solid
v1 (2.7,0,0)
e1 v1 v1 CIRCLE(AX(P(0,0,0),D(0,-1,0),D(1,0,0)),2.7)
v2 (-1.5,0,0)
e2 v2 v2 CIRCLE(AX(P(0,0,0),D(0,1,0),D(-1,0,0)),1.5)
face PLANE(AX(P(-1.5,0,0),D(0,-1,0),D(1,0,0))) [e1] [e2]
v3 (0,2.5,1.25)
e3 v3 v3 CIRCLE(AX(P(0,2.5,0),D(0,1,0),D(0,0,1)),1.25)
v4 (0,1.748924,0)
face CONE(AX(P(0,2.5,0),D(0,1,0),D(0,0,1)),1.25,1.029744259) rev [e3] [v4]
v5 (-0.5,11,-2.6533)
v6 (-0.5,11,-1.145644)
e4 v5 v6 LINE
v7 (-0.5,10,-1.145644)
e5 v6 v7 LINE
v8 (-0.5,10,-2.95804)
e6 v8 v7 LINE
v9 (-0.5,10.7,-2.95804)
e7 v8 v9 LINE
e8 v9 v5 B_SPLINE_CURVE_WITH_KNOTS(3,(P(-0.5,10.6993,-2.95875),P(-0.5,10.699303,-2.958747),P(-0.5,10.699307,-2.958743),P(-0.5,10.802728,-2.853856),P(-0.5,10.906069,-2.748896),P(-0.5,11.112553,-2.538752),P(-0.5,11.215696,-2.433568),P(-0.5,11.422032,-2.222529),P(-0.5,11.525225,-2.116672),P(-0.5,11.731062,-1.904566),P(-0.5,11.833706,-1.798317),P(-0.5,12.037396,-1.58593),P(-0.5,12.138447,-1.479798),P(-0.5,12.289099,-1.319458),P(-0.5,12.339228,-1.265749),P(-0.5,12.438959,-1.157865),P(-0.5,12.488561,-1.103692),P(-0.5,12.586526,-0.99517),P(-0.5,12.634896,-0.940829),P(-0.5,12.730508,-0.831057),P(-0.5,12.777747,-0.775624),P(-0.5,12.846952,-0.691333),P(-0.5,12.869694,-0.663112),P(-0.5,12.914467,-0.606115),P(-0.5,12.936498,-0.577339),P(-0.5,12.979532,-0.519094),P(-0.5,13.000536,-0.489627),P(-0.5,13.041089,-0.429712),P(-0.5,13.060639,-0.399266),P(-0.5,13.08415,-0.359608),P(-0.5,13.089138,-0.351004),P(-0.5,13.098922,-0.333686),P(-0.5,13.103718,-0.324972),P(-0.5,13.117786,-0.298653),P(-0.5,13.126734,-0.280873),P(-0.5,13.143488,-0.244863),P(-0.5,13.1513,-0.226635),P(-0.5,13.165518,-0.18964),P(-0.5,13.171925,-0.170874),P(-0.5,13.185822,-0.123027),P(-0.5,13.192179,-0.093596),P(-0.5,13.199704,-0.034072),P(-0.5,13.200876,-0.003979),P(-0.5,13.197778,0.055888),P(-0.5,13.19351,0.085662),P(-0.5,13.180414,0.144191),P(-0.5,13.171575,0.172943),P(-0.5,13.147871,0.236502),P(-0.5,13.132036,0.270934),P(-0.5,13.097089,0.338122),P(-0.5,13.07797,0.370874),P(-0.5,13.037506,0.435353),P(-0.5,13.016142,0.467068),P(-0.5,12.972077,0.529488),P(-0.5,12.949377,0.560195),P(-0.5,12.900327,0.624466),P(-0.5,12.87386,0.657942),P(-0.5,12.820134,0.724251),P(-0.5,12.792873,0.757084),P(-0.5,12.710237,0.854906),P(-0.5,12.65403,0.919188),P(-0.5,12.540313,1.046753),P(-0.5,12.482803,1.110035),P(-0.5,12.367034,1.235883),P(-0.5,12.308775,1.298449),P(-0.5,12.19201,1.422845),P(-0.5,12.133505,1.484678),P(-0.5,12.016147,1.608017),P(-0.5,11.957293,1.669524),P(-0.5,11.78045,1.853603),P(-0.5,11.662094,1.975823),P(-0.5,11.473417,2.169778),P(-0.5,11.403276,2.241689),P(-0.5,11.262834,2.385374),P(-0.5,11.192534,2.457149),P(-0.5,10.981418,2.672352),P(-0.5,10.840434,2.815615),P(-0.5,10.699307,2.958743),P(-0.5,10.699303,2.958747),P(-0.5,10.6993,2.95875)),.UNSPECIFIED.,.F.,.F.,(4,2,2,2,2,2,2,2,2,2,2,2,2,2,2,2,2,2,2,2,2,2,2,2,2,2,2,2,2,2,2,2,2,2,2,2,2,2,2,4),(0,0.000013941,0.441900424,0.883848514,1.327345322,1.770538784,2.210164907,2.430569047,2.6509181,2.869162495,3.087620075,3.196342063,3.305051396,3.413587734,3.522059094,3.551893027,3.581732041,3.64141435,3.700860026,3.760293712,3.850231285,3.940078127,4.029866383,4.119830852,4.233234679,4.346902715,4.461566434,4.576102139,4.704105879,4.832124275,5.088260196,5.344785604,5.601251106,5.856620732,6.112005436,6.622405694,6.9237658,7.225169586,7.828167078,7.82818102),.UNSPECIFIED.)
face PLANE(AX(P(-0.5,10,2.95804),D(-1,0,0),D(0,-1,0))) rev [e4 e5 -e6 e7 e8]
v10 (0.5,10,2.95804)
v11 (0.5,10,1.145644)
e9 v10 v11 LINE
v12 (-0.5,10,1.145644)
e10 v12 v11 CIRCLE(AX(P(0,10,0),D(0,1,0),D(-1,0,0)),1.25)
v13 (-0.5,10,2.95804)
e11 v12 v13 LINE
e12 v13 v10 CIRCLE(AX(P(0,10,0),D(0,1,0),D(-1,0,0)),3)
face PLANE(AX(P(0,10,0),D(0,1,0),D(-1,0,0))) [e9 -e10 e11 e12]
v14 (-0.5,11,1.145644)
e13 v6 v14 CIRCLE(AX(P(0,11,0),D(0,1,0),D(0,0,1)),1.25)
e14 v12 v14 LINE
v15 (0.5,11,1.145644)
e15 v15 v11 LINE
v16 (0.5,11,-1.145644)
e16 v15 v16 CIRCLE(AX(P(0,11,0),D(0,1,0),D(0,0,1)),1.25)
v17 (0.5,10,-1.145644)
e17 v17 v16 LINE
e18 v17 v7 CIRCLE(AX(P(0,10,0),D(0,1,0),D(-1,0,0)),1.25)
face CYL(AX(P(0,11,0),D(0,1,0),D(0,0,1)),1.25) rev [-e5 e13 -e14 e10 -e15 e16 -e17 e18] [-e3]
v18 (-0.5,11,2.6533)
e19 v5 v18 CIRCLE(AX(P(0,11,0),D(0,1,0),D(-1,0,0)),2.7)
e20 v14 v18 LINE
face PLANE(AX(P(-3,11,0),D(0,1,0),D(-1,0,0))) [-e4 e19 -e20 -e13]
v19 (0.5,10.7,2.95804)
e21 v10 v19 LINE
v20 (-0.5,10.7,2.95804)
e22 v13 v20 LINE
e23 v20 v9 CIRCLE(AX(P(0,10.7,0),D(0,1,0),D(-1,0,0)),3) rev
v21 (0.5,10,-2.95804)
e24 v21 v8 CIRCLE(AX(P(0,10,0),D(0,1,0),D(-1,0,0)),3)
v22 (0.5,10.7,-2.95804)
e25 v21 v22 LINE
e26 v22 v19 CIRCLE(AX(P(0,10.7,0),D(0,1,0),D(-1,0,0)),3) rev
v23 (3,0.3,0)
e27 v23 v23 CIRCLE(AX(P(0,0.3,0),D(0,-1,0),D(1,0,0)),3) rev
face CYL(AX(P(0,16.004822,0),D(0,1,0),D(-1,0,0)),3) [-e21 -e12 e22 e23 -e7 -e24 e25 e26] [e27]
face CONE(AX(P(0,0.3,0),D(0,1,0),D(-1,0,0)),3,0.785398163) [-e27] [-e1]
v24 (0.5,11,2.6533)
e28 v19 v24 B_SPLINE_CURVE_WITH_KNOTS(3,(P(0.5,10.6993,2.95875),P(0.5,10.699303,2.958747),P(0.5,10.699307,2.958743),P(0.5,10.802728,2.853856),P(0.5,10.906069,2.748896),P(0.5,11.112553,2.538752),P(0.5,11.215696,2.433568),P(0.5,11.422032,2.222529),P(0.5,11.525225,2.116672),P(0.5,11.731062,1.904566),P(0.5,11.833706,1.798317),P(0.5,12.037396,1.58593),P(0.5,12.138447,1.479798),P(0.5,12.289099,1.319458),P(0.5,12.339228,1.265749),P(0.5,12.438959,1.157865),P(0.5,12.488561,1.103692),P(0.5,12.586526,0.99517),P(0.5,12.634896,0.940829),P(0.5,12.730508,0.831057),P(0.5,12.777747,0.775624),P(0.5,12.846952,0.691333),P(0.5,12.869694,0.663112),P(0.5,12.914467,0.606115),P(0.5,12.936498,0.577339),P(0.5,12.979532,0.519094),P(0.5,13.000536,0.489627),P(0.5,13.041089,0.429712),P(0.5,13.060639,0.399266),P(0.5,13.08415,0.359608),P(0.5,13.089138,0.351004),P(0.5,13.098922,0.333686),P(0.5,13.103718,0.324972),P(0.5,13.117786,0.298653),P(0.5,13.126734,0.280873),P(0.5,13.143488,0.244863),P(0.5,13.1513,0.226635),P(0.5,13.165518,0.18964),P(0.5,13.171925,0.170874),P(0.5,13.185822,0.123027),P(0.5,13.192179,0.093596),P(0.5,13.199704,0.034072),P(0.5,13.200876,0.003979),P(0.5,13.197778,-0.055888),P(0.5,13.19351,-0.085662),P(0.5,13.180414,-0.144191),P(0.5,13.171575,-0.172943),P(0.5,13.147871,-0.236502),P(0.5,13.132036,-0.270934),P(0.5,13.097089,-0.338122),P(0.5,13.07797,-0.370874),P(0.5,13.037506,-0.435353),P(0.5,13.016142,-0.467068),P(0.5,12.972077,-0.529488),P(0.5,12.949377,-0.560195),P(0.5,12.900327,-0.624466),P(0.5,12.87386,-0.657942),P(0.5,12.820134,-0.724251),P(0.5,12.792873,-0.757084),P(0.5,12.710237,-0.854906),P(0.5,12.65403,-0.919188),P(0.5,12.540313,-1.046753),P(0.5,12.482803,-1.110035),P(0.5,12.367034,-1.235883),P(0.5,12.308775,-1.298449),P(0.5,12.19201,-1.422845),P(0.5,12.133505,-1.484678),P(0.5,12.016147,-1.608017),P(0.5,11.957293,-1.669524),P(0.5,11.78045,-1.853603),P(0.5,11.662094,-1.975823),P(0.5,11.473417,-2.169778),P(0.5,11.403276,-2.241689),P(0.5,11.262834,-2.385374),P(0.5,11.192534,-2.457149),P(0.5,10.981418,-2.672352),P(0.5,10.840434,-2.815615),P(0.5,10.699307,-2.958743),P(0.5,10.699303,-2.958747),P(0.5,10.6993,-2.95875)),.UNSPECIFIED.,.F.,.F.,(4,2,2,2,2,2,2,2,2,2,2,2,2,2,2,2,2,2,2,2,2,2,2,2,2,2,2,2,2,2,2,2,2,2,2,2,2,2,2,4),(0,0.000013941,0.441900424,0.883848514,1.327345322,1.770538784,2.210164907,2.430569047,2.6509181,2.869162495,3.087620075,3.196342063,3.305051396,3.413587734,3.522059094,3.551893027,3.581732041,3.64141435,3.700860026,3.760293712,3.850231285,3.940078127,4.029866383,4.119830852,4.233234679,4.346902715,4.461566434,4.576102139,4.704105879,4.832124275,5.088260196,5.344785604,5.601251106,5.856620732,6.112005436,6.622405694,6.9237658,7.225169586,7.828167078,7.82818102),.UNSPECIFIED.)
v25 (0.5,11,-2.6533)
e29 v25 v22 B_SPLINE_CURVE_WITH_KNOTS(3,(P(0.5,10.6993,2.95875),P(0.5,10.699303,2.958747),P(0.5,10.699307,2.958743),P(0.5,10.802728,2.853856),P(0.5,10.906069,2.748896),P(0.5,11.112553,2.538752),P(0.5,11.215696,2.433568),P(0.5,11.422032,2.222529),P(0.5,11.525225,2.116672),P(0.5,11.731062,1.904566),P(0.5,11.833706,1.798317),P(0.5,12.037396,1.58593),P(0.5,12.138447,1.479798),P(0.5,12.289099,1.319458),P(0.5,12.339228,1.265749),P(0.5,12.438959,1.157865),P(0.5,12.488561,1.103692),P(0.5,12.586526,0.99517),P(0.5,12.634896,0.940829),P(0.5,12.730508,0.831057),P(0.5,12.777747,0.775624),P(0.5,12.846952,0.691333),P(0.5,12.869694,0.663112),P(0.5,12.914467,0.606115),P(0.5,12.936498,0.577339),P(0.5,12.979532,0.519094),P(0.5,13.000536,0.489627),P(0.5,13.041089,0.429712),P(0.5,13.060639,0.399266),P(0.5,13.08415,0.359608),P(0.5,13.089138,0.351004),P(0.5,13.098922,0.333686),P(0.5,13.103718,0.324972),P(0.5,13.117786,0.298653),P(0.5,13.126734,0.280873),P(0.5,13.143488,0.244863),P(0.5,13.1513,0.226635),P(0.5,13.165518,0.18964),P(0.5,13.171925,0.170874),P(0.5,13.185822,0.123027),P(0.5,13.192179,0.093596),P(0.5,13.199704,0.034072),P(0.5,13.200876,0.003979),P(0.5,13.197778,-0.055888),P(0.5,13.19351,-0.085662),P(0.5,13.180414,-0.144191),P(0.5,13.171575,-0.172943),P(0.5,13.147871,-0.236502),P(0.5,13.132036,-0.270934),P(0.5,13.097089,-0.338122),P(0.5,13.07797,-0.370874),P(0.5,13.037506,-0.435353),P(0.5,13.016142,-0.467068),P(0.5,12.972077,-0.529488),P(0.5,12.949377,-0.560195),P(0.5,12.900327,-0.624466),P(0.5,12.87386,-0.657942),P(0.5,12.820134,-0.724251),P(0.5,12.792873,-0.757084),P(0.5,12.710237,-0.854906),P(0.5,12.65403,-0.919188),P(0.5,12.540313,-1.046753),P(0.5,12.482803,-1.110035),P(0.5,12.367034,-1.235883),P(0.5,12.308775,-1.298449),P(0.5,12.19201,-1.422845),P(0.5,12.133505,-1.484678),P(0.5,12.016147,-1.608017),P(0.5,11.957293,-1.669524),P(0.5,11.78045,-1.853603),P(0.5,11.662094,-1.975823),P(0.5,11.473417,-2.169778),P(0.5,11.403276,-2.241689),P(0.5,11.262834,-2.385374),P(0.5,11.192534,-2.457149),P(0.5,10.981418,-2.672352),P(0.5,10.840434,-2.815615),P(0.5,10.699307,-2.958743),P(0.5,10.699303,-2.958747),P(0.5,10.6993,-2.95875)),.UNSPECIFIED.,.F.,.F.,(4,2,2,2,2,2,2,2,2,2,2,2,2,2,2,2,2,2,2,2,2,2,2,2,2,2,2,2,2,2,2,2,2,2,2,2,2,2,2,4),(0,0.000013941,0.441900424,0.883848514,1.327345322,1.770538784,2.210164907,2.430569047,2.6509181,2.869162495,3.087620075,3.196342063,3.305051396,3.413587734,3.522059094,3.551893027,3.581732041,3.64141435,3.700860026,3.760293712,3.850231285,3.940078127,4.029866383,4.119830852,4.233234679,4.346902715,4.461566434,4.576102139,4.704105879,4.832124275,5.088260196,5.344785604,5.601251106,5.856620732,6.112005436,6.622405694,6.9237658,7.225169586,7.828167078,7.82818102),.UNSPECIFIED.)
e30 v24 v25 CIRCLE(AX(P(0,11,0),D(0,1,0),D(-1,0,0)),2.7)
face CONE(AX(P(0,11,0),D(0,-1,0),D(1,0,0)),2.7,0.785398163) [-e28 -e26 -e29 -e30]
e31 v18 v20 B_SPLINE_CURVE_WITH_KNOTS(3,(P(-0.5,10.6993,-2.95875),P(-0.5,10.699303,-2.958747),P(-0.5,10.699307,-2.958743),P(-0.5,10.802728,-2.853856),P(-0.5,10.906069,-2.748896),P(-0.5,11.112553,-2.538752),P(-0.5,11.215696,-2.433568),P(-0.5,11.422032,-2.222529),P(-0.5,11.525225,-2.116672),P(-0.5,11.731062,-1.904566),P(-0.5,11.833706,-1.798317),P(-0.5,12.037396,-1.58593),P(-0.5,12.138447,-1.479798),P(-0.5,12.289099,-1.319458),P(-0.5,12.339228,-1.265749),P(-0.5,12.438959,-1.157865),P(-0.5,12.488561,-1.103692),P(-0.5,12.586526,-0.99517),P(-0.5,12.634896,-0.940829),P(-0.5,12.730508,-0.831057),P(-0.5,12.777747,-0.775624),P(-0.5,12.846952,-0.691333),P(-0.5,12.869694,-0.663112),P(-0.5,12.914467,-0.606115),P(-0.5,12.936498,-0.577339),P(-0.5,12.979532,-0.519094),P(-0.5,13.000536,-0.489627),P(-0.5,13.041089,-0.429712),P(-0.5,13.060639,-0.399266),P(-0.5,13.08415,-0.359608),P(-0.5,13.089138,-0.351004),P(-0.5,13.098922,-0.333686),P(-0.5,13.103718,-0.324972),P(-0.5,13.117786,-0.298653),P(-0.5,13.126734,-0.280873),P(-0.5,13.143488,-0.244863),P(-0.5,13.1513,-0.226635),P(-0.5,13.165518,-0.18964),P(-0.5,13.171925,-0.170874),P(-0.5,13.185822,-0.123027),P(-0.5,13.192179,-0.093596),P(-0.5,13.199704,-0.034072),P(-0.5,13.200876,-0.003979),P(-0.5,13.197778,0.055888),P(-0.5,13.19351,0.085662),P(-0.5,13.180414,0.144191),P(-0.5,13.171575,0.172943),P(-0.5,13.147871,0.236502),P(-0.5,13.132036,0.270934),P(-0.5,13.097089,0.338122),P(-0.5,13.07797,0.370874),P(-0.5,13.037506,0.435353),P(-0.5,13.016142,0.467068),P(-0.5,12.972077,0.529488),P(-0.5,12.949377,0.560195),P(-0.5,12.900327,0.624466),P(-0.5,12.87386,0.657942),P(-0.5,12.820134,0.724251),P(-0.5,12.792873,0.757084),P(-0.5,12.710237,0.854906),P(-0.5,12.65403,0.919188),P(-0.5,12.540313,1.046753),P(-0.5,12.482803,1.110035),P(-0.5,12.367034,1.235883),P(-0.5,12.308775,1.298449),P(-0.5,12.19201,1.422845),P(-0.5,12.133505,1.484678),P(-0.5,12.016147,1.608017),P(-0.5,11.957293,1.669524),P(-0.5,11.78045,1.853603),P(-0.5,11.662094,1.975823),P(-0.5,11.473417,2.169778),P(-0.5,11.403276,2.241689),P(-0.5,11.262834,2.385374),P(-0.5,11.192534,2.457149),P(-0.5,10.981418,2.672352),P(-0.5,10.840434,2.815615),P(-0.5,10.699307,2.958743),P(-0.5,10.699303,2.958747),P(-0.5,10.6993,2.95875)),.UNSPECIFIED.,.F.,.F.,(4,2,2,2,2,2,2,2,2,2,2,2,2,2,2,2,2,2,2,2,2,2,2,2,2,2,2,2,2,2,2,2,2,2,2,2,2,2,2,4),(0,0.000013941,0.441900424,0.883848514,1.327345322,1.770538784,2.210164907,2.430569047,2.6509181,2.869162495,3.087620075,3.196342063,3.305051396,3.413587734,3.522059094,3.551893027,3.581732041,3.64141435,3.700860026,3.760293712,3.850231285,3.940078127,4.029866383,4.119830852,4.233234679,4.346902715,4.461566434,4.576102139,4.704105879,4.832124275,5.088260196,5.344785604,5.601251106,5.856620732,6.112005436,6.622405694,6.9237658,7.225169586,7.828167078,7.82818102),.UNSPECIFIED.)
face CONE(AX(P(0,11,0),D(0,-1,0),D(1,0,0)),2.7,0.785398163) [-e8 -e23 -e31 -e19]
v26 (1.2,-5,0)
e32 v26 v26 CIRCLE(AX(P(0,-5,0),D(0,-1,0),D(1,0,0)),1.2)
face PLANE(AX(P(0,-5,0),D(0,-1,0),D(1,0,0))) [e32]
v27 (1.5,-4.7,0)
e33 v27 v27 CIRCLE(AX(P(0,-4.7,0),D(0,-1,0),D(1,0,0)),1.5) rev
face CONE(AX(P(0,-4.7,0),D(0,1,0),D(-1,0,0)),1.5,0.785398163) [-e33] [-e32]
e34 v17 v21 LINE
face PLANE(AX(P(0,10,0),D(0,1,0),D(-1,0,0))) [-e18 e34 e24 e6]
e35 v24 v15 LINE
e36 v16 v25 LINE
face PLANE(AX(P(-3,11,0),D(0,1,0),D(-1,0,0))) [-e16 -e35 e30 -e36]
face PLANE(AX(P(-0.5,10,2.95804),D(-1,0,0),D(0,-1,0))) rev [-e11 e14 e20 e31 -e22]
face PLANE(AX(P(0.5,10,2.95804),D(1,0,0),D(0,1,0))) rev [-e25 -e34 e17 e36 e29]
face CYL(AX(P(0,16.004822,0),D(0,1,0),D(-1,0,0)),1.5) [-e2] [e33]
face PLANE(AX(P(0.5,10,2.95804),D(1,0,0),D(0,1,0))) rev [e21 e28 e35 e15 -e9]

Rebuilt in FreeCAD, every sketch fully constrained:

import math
import FreeCAD as App
import Part
import Sketcher
from FreeCAD import Vector
Q = App.Units.Quantity


def edges_at(feature, points):
    """Names of the edges that pass closest to the given points."""
    edges = feature.Shape.Edges
    near = lambda p: min(range(len(edges)), key=lambda i: edges[i].distToShape(Part.Vertex(*p))[0])
    return sorted({f"Edge{near(p) + 1}" for p in points})

doc = App.newDocument("Part")
body = doc.addObject("PartDesign::Body", "Body")

# Sketch on XY plane
sketch1 = body.newObject("Sketcher::SketchObject", "Sketch")
sketch1.AttachmentSupport = (doc.getObject("XY_Plane"), [""])
sketch1.MapMode = "FlatFace"
sketch1.addGeometry(Part.LineSegment(Vector(-1.5, -5, 0), Vector(0, -5, 0)), False)
sketch1.addGeometry(Part.LineSegment(Vector(0, -5, 0), Vector(0, 11, 0)), False)
sketch1.addGeometry(Part.LineSegment(Vector(0, 11, 0), Vector(-3, 11, 0)), False)
sketch1.addGeometry(Part.LineSegment(Vector(-3, 11, 0), Vector(-3, 0, 0)), False)
sketch1.addGeometry(Part.LineSegment(Vector(-3, 0, 0), Vector(-1.5, 0, 0)), False)
sketch1.addGeometry(Part.LineSegment(Vector(-1.5, 0, 0), Vector(-1.5, -5, 0)), False)
sketch1.addConstraint(Sketcher.Constraint("Coincident", 0, 2, 1, 1))
sketch1.addConstraint(Sketcher.Constraint("Coincident", 1, 2, 2, 1))
sketch1.addConstraint(Sketcher.Constraint("Coincident", 2, 2, 3, 1))
sketch1.addConstraint(Sketcher.Constraint("Coincident", 3, 2, 4, 1))
sketch1.addConstraint(Sketcher.Constraint("Coincident", 4, 2, 5, 1))
sketch1.addConstraint(Sketcher.Constraint("Coincident", 5, 2, 0, 1))
sketch1.addConstraint(Sketcher.Constraint("Horizontal", 0))
sketch1.addConstraint(Sketcher.Constraint("Vertical", 1))
sketch1.addConstraint(Sketcher.Constraint("Horizontal", 2))
sketch1.addConstraint(Sketcher.Constraint("Vertical", 3))
sketch1.addConstraint(Sketcher.Constraint("Horizontal", 4))
sketch1.addConstraint(Sketcher.Constraint("Vertical", 5))
sketch1.addConstraint(Sketcher.Constraint("PointOnObject", 0, 2, -2))
sketch1.addConstraint(Sketcher.Constraint("PointOnObject", 3, 2, -1))
sketch1.addConstraint(Sketcher.Constraint("Equal", 0, 4))
sketch1.addConstraint(Sketcher.Constraint("DistanceX", 2, 2, 2, 1, Q("3 mm")))
sketch1.addConstraint(Sketcher.Constraint("DistanceY", 1, 1, 1, 2, Q("16 mm")))
sketch1.addConstraint(Sketcher.Constraint("DistanceY", 3, 2, 3, 1, Q("11 mm")))
revolution = body.newObject("PartDesign::Revolution", "Revolution")
revolution.Profile = sketch1
revolution.ReferenceAxis = (sketch1, ["V_Axis"])
revolution.Angle = 360
doc.recompute()

chamfer = body.newObject("PartDesign::Chamfer", "Chamfer")
chamfer.Base = (revolution, edges_at(revolution, [(3, 11, 0), (3, 0, 0), (1.5, -5, 0)]))
chamfer.Size = 0.3

# Sketch on XZ plane
sketch2 = body.newObject("Sketcher::SketchObject", "Sketch001")
sketch2.AttachmentSupport = (doc.getObject("XZ_Plane"), [""])
sketch2.MapMode = "FlatFace"
sketch2.AttachmentOffset = App.Placement(Vector(0, 0, -11), App.Rotation())
sketch2.addGeometry(Part.LineSegment(Vector(0.5, 3, 0), Vector(0.5, -3, 0)), False)
sketch2.addGeometry(Part.ArcOfCircle(Part.Circle(Vector(0, 0, 0), Vector(0, 0, 1), 3), math.radians(-99.59), math.radians(-80.41)), False)
sketch2.addGeometry(Part.LineSegment(Vector(-0.5, -3, 0), Vector(-0.5, 3, 0)), False)
sketch2.addGeometry(Part.ArcOfCircle(Part.Circle(Vector(0, 0, 0), Vector(0, 0, 1), 3), math.radians(80.41), math.radians(99.59)), False)
sketch2.addConstraint(Sketcher.Constraint("Coincident", 0, 2, 1, 2))
sketch2.addConstraint(Sketcher.Constraint("Coincident", 1, 1, 2, 1))
sketch2.addConstraint(Sketcher.Constraint("Coincident", 2, 2, 3, 2))
sketch2.addConstraint(Sketcher.Constraint("Coincident", 3, 1, 0, 1))
sketch2.addConstraint(Sketcher.Constraint("Vertical", 0))
sketch2.addConstraint(Sketcher.Constraint("Vertical", 2))
sketch2.addConstraint(Sketcher.Constraint("Coincident", 1, 3, -1, 1))
sketch2.addConstraint(Sketcher.Constraint("Coincident", 3, 3, -1, 1))
sketch2.addConstraint(Sketcher.Constraint("Equal", 1, 3))
sketch2.addConstraint(Sketcher.Constraint("Horizontal", 0, 2, 1, 1))
sketch2.addConstraint(Sketcher.Constraint("Radius", 1, Q("3 mm")))
sketch2.addConstraint(Sketcher.Constraint("DistanceX", 1, 1, 0, 2, Q("1 mm")))
pocket1 = body.newObject("PartDesign::Pocket", "Pocket")
pocket1.Profile = sketch2
pocket1.Length = 1
pocket1.Reversed = True

# Sketch on XZ plane
sketch3 = body.newObject("Sketcher::SketchObject", "Sketch002")
sketch3.AttachmentSupport = (doc.getObject("XZ_Plane"), [""])
sketch3.MapMode = "FlatFace"
sketch3.AttachmentOffset = App.Placement(Vector(0, 0, -11), App.Rotation())
sketch3.addGeometry(Part.Circle(Vector(0, 0, 0), Vector(0, 0, 1), 1.2), False)
sketch3.addConstraint(Sketcher.Constraint("Coincident", 0, 3, -1, 1))
sketch3.addConstraint(Sketcher.Constraint("Diameter", 0, Q("2.5 mm")))
doc.recompute()
hole = body.newObject("PartDesign::Hole", "Hole")
hole.Profile = sketch3
hole.ThreadType = "None"
hole.Diameter = 2.5
hole.DepthType = "Dimension"
hole.Depth = 8.5
hole.DrillPoint = "Angled"
hole.DrillPointAngle = 118
hole.Reversed = True

doc.recompute()
